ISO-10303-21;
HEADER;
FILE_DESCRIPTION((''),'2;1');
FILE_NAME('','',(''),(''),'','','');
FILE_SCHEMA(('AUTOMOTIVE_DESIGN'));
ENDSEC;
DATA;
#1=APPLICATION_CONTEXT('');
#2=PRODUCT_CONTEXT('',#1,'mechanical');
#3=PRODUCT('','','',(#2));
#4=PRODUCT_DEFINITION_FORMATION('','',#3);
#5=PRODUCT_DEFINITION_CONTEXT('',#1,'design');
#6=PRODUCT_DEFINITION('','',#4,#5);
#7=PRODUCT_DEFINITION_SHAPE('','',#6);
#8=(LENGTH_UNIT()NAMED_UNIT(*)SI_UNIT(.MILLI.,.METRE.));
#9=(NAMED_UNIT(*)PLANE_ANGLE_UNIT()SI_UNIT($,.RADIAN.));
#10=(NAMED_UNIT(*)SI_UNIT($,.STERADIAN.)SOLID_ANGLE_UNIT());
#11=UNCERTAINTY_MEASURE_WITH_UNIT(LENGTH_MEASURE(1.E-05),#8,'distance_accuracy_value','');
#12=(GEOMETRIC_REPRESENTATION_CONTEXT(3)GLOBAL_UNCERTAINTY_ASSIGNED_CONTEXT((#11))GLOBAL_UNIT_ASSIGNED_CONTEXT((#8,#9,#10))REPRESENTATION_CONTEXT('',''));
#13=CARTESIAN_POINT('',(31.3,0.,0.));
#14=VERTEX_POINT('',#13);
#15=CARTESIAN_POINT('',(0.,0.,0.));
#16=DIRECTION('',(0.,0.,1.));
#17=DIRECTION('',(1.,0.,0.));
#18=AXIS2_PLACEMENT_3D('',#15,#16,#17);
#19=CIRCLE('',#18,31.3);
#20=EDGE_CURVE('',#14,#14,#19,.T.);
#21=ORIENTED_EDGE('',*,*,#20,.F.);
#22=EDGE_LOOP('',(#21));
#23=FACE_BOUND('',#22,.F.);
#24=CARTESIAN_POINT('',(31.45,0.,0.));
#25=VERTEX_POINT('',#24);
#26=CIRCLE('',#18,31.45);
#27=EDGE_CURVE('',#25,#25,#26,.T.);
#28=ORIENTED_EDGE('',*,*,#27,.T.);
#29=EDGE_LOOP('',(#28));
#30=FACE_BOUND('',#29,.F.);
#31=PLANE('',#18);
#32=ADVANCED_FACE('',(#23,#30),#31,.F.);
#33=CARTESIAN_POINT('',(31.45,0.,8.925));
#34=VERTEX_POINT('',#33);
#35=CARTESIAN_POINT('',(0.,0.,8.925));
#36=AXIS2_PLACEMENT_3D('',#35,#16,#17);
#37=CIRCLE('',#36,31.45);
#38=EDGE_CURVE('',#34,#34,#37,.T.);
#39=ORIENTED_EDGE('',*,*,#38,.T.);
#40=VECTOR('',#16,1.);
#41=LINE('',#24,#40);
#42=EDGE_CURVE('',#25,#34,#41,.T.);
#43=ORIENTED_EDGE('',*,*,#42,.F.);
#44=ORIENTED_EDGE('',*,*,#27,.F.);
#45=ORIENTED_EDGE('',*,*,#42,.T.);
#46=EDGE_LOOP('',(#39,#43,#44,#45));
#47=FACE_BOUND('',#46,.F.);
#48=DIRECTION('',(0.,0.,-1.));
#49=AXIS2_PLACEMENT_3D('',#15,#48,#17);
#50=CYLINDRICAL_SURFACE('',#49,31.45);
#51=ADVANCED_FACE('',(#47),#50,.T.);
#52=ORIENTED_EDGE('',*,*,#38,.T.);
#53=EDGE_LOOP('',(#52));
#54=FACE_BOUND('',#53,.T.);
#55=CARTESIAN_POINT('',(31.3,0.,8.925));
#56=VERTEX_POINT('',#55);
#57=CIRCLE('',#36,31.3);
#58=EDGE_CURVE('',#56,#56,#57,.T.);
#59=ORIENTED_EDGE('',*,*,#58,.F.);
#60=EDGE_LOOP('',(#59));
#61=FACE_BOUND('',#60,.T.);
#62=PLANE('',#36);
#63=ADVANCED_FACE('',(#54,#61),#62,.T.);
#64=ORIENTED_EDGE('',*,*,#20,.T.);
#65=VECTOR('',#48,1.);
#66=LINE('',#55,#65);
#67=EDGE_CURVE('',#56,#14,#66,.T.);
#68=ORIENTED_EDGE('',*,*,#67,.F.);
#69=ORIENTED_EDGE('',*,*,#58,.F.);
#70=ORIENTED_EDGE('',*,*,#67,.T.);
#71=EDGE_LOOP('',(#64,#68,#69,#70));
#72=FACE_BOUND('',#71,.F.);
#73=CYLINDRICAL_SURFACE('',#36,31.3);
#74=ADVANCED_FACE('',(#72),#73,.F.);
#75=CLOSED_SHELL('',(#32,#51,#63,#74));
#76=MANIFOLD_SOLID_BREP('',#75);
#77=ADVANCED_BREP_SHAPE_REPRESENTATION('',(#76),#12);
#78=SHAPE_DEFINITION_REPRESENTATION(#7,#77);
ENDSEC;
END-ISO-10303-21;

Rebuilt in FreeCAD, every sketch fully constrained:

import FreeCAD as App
import Part
import Sketcher

V = App.Vector
Q = App.Units.Quantity

doc = App.newDocument("Part")
body = doc.addObject("PartDesign::Body", "Body")

sketch1 = body.newObject("Sketcher::SketchObject", "Sketch")
sketch1.AttachmentSupport = (doc.getObject("XY_Plane"), [""])
sketch1.MapMode = "FlatFace"
sketch1.addGeometry(Part.Circle(V(0, 0, 0), V(0, 0, 1), 31.45), False)
sketch1.addConstraint(Sketcher.Constraint("Coincident", 0, 3, -1, 1))
sketch1.addConstraint(Sketcher.Constraint("Diameter", 0, Q("62.9 mm")))
pad1 = body.newObject("PartDesign::Pad", "Pad")
pad1.Profile = sketch1
pad1.Length = 8.925

sketch2 = body.newObject("Sketcher::SketchObject", "Sketch001")
sketch2.AttachmentSupport = (doc.getObject("XY_Plane"), [""])
sketch2.MapMode = "FlatFace"
sketch2.AttachmentOffset = App.Placement(V(0, 0, 8.925), App.Rotation())
sketch2.addGeometry(Part.Circle(V(0, 0, 0), V(0, 0, 1), 31.3), False)
sketch2.addConstraint(Sketcher.Constraint("Coincident", 0, 3, -1, 1))
sketch2.addConstraint(Sketcher.Constraint("Diameter", 0, Q("62.6 mm")))
pocket1 = body.newObject("PartDesign::Pocket", "Pocket")
pocket1.Profile = sketch2
pocket1.Type = "ThroughAll"

doc.recompute()
